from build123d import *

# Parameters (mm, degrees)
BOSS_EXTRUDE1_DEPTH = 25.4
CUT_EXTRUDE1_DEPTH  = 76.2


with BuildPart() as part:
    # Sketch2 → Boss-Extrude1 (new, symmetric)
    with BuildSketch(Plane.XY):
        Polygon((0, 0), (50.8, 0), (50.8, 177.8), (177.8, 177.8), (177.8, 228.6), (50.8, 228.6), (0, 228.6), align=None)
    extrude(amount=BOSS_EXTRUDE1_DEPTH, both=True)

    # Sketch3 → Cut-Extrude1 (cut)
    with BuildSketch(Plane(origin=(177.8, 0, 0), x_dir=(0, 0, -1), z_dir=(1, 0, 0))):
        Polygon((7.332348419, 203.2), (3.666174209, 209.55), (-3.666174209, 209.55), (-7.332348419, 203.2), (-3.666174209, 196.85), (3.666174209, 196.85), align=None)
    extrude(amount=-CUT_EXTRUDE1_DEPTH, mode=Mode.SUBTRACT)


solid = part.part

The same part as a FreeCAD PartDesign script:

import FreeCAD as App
import Part
import Sketcher
from FreeCAD import Vector
Q = App.Units.Quantity

doc = App.newDocument("Part")
params = doc.addObject("Spreadsheet::Sheet", "Params")
for row, (alias, value) in enumerate([
    ("sketch1_width", "2 in"),
    ("sketch1_width2", "5 in"),
    ("pad1_length", "2 in"),
    ("pocket1_length", "3 in"),
], start=1):
    params.set(f"A{row}", alias)
    params.set(f"B{row}", "=" + value)
    params.setAlias(f"B{row}", alias)

body = doc.addObject("PartDesign::Body", "Body")

# Sketch on XY plane
sketch1 = body.newObject("Sketcher::SketchObject", "Sketch")
sketch1.AttachmentSupport = (doc.getObject("XY_Plane"), [""])
sketch1.MapMode = "FlatFace"
sketch1.addGeometry([
    Part.LineSegment(Vector(0, 0, 0), Vector(51, 0, 0)),  # 0
    Part.LineSegment(Vector(51, 0, 0), Vector(51, 178, 0)),  # 1
    Part.LineSegment(Vector(51, 178, 0), Vector(178, 178, 0)),  # 2
    Part.LineSegment(Vector(178, 178, 0), Vector(178, 229, 0)),  # 3
    Part.LineSegment(Vector(178, 229, 0), Vector(0, 229, 0)),  # 4
    Part.LineSegment(Vector(0, 229, 0), Vector(0, 0, 0)),  # 5
], False)
sketch1.addConstraint([
    Sketcher.Constraint("Coincident", 0, 2, 1, 1),
    Sketcher.Constraint("Coincident", 1, 2, 2, 1),
    Sketcher.Constraint("Coincident", 2, 2, 3, 1),
    Sketcher.Constraint("Coincident", 3, 2, 4, 1),
    Sketcher.Constraint("Coincident", 4, 2, 5, 1),
    Sketcher.Constraint("Coincident", 5, 2, 0, 1),
    Sketcher.Constraint("Horizontal", 0),
    Sketcher.Constraint("Vertical", 1),
    Sketcher.Constraint("Horizontal", 2),
    Sketcher.Constraint("Vertical", 3),
    Sketcher.Constraint("Horizontal", 4),
    Sketcher.Constraint("Vertical", 5),
    Sketcher.Constraint("Coincident", 5, 2, -1, 1),
    Sketcher.Constraint("Equal", 4, 1),
    Sketcher.Constraint("Equal", 0, 3),
    Sketcher.Constraint("DistanceX", 0, 1, 0, 2, Q("2 in")),
    Sketcher.Constraint("DistanceX", 2, 1, 2, 2, Q("5 in")),
])
sketch1.setExpression("Constraints[15]", "Params.sketch1_width")
sketch1.setExpression("Constraints[16]", "Params.sketch1_width2")
pad1 = body.newObject("PartDesign::Pad", "Pad")
pad1.Profile = sketch1
pad1.setExpression("Length", "Params.pad1_length")
pad1.Midplane = True

# Sketch on YZ plane
sketch2 = body.newObject("Sketcher::SketchObject", "Sketch001")
sketch2.AttachmentSupport = (doc.getObject("YZ_Plane"), [""])
sketch2.MapMode = "FlatFace"
sketch2.AttachmentOffset = App.Placement(Vector(0, 0, 7 * 25.4), App.Rotation())
sketch2.addGeometry([
    Part.LineSegment(Vector(203, -7, 0), Vector(210, -4, 0)),  # 0
    Part.LineSegment(Vector(210, -4, 0), Vector(210, 4, 0)),  # 1
    Part.LineSegment(Vector(210, 4, 0), Vector(203, 7, 0)),  # 2
    Part.LineSegment(Vector(203, 7, 0), Vector(197, 4, 0)),  # 3
    Part.LineSegment(Vector(197, 4, 0), Vector(197, -4, 0)),  # 4
    Part.LineSegment(Vector(197, -4, 0), Vector(203, -7, 0)),  # 5
], False)
sketch2.addConstraint([
    Sketcher.Constraint("Coincident", 0, 2, 1, 1),
    Sketcher.Constraint("Coincident", 1, 2, 2, 1),
    Sketcher.Constraint("Coincident", 2, 2, 3, 1),
    Sketcher.Constraint("Coincident", 3, 2, 4, 1),
    Sketcher.Constraint("Coincident", 4, 2, 5, 1),
    Sketcher.Constraint("Coincident", 5, 2, 0, 1),
    Sketcher.Constraint("Vertical", 1),
    Sketcher.Constraint("Vertical", 4),
    Sketcher.Constraint("Symmetric", 2, 2, 5, 2, -1),
    Sketcher.Constraint("Parallel", 0, 3),
    Sketcher.Constraint("Parallel", 2, 5),
    Sketcher.Constraint("Horizontal", 1, 2, 3, 2),
    Sketcher.Constraint("Horizontal", 0, 2, 4, 2),
    Sketcher.Constraint("DistanceX", -1, 1, 2, 2, Q("8 in")),
    Sketcher.Constraint("Angle", 0, Q("30 deg")),
    Sketcher.Constraint("DistanceX", 3, 2, 1, 2, Q("0.5 in")),
    Sketcher.Constraint("DistanceY", 1, 1, 1, 2, Q("7.332348 mm")),
])
pocket1 = body.newObject("PartDesign::Pocket", "Pocket")
pocket1.Profile = sketch2
pocket1.setExpression("Length", "Params.pocket1_length")

doc.recompute()
